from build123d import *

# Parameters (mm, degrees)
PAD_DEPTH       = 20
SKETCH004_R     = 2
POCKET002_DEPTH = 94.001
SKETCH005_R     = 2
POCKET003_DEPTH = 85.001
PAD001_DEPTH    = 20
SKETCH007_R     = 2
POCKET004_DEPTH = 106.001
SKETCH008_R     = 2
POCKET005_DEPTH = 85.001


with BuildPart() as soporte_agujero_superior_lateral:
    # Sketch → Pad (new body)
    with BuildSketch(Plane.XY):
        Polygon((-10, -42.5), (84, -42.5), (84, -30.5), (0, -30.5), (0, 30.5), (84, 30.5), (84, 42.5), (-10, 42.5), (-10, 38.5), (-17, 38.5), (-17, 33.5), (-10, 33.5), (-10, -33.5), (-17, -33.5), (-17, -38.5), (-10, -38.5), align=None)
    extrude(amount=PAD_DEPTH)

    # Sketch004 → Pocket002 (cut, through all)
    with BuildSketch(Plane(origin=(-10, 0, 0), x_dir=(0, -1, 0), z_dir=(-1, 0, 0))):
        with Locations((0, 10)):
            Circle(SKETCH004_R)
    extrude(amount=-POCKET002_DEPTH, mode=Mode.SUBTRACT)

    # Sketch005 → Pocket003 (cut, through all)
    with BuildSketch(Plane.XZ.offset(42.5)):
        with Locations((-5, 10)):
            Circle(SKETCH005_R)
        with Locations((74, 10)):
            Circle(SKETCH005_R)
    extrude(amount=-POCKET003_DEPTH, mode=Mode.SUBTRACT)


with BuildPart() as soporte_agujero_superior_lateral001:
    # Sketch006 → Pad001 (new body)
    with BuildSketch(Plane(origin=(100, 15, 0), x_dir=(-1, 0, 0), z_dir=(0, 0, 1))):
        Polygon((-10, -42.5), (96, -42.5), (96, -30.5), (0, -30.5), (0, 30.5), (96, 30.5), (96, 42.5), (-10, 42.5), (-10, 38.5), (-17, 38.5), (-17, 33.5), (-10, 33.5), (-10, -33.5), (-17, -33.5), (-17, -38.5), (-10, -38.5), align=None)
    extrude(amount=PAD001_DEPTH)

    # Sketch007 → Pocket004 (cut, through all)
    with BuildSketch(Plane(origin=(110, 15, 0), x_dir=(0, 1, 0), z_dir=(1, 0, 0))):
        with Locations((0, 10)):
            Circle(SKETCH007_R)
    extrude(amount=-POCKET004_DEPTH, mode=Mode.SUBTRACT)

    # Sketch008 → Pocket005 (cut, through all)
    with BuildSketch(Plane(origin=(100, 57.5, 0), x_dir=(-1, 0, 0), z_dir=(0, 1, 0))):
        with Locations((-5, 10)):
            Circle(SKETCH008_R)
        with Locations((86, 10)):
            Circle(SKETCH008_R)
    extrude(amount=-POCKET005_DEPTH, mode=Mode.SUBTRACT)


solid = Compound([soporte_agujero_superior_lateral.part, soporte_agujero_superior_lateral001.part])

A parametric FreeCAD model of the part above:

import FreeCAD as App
import Part
import Sketcher

V = App.Vector


def add_polygon(sketch, points):
    """Adds a closed chain of lines whose ends are joined by coincident constraints."""
    first, n = sketch.GeometryCount, len(points)
    for a, b in zip(points, points[1:] + points[:1]):
        sketch.addGeometry(Part.LineSegment(App.Vector(*a, 0), App.Vector(*b, 0)), False)
    for i in range(n):
        sketch.addConstraint(Sketcher.Constraint("Coincident", first + i, 2, first + (i + 1) % n, 1))

doc = App.newDocument("Part")
body = doc.addObject("PartDesign::Body", "Body")

sketch1 = body.newObject("Sketcher::SketchObject", "Sketch")
sketch1.AttachmentSupport = (doc.getObject("XY_Plane"), [""])
sketch1.MapMode = "FlatFace"
add_polygon(sketch1, [(-10, -42.5), (84, -42.5), (84, -30.5), (0, -30.5), (0, 30.5), (84, 30.5), (84, 42.5), (-10, 42.5), (-10, 38.5), (-17, 38.5), (-17, 33.5), (-10, 33.5), (-10, -33.5), (-17, -33.5), (-17, -38.5), (-10, -38.5)])
sketch1.addConstraint([
    Sketcher.Constraint("Horizontal", 0),
    Sketcher.Constraint("Vertical", 1),
    Sketcher.Constraint("Horizontal", 2),
    Sketcher.Constraint("Vertical", 3),
    Sketcher.Constraint("Horizontal", 4),
    Sketcher.Constraint("Vertical", 5),
    Sketcher.Constraint("Horizontal", 6),
    Sketcher.Constraint("Vertical", 7),
    Sketcher.Constraint("Horizontal", 8),
    Sketcher.Constraint("Vertical", 9),
    Sketcher.Constraint("Horizontal", 10),
    Sketcher.Constraint("Vertical", 11),
    Sketcher.Constraint("Horizontal", 12),
    Sketcher.Constraint("Vertical", 13),
    Sketcher.Constraint("Horizontal", 14),
    Sketcher.Constraint("Vertical", 15),
    Sketcher.Constraint("Symmetric", 2, 2, 3, 2, -1, 1),
    Sketcher.Constraint("Symmetric", 0, 2, 5, 2, -1),
    Sketcher.Constraint("Symmetric", 9, 2, 12, 2, -1),
    Sketcher.Constraint("Symmetric", 7, 2, 14, 2, -1),
    Sketcher.Constraint("Vertical", 7, 2, 10, 2),
    Sketcher.Constraint("DistanceX", 0, 1, 0, 2, 94.0),
    Sketcher.Constraint("DistanceX", 2, 2, 2, 1, 84.0),
    Sketcher.Constraint("DistanceX", 8, 2, 8, 1, 7.0),
    Sketcher.Constraint("DistanceY", 1, 1, 1, 2, 12.0),
    Sketcher.Constraint("DistanceY", 3, 1, 3, 2, 61.0),
    Sketcher.Constraint("DistanceY", 7, 2, 7, 1, 4.0),
    Sketcher.Constraint("DistanceY", 9, 2, 9, 1, 5.0),
])
pad1 = body.newObject("PartDesign::Pad", "Pad")
pad1.Profile = sketch1
pad1.Length = 20

sketch2 = body.newObject("Sketcher::SketchObject", "Sketch001")
sketch2.AttachmentSupport = (doc.getObject("YZ_Plane"), [""])
sketch2.MapMode = "FlatFace"
sketch2.AttachmentOffset = App.Placement(V(0, 0, -10), App.Rotation())
sketch2.addGeometry(Part.Circle(V(0, 10, 0), V(0, 0, 1), 2), False)
sketch2.addConstraint([
    Sketcher.Constraint("PointOnObject", 0, 3, -2),
    Sketcher.Constraint("Diameter", 0, 4.0),
    Sketcher.Constraint("DistanceY", -1, 1, 0, 3, 10.0),
])
pocket1 = body.newObject("PartDesign::Pocket", "Pocket")
pocket1.Profile = sketch2
pocket1.Type = "ThroughAll"
pocket1.Reversed = True

sketch3 = body.newObject("Sketcher::SketchObject", "Sketch002")
sketch3.AttachmentSupport = (doc.getObject("XZ_Plane"), [""])
sketch3.MapMode = "FlatFace"
sketch3.AttachmentOffset = App.Placement(V(0, 0, 42.5), App.Rotation())
sketch3.addGeometry([
    Part.Circle(V(-5, 10, 0), V(0, 0, 1), 2),
    Part.Circle(V(74, 10, 0), V(0, 0, 1), 2),
], False)
sketch3.addConstraint([
    Sketcher.Constraint("Equal", 0, 1),
    Sketcher.Constraint("Horizontal", 0, 3, 1, 3),
    Sketcher.Constraint("Diameter", 0, 4.0),
    Sketcher.Constraint("DistanceX", 0, 3, -1, 1, 5.0),
    Sketcher.Constraint("DistanceY", -1, 1, 0, 3, 10.0),
    Sketcher.Constraint("DistanceX", -1, 1, 1, 3, 74.0),
])
pocket2 = body.newObject("PartDesign::Pocket", "Pocket001")
pocket2.Profile = sketch3
pocket2.Type = "ThroughAll"
body2 = doc.addObject("PartDesign::Body", "Body001")

sketch4 = body2.newObject("Sketcher::SketchObject", "Sketch003")
sketch4.AttachmentSupport = (doc.getObject("XY_Plane001"), [""])
sketch4.MapMode = "FlatFace"
add_polygon(sketch4, [(110, 57.5), (4, 57.5), (4, 45.5), (100, 45.5), (100, -15.5), (4, -15.5), (4, -27.5), (110, -27.5), (110, -23.5), (117, -23.5), (117, -18.5), (110, -18.5), (110, 48.5), (117, 48.5), (117, 53.5), (110, 53.5)])
sketch4.addConstraint([
    Sketcher.Constraint("Horizontal", 0),
    Sketcher.Constraint("Vertical", 1),
    Sketcher.Constraint("Horizontal", 2),
    Sketcher.Constraint("Vertical", 3),
    Sketcher.Constraint("Horizontal", 4),
    Sketcher.Constraint("Vertical", 5),
    Sketcher.Constraint("Horizontal", 6),
    Sketcher.Constraint("Vertical", 7),
    Sketcher.Constraint("Horizontal", 8),
    Sketcher.Constraint("Vertical", 9),
    Sketcher.Constraint("Horizontal", 10),
    Sketcher.Constraint("Vertical", 11),
    Sketcher.Constraint("Horizontal", 12),
    Sketcher.Constraint("Vertical", 13),
    Sketcher.Constraint("Horizontal", 14),
    Sketcher.Constraint("Vertical", 15),
    Sketcher.Constraint("Vertical", 1, 2, 4, 2),
    Sketcher.Constraint("Vertical", 7, 2, 10, 2),
    Sketcher.Constraint("Vertical", 9, 2, 12, 2),
    Sketcher.Constraint("Vertical", 11, 2, 14, 2),
    Sketcher.Constraint("Equal", 1, 5),
    Sketcher.Constraint("Equal", 9, 13),
    Sketcher.Constraint("Equal", 7, 15),
    Sketcher.Constraint("DistanceX", 0, 2, 0, 1, 106.0),
    Sketcher.Constraint("DistanceX", 2, 1, 2, 2, 96.0),
    Sketcher.Constraint("DistanceX", 8, 1, 8, 2, 7.0),
    Sketcher.Constraint("DistanceY", 1, 2, 1, 1, 12.0),
    Sketcher.Constraint("DistanceY", 3, 2, 3, 1, 61.0),
    Sketcher.Constraint("DistanceY", 7, 1, 7, 2, 4.0),
    Sketcher.Constraint("DistanceY", 9, 1, 9, 2, 5.0),
    Sketcher.Constraint("DistanceX", -1, 1, 0, 2, 4.0),
    Sketcher.Constraint("DistanceY", -1, 1, 0, 2, 57.5),
])
pad2 = body2.newObject("PartDesign::Pad", "Pad001")
pad2.Profile = sketch4
pad2.Length = 20

sketch5 = body2.newObject("Sketcher::SketchObject", "Sketch004")
sketch5.AttachmentSupport = (doc.getObject("YZ_Plane001"), [""])
sketch5.MapMode = "FlatFace"
sketch5.AttachmentOffset = App.Placement(V(0, 0, 110), App.Rotation())
sketch5.addGeometry(Part.Circle(V(15, 10, 0), V(0, 0, 1), 2), False)
sketch5.addConstraint([
    Sketcher.Constraint("Diameter", 0, 4.0),
    Sketcher.Constraint("DistanceX", -1, 1, 0, 3, 15.0),
    Sketcher.Constraint("DistanceY", -1, 1, 0, 3, 10.0),
])
pocket3 = body2.newObject("PartDesign::Pocket", "Pocket002")
pocket3.Profile = sketch5
pocket3.Type = "ThroughAll"

sketch6 = body2.newObject("Sketcher::SketchObject", "Sketch005")
sketch6.AttachmentSupport = (doc.getObject("XZ_Plane001"), [""])
sketch6.MapMode = "FlatFace"
sketch6.AttachmentOffset = App.Placement(V(0, 0, -57.5), App.Rotation())
sketch6.addGeometry([
    Part.Circle(V(105, 10, 0), V(0, 0, 1), 2),
    Part.Circle(V(14, 10, 0), V(0, 0, 1), 2),
], False)
sketch6.addConstraint([
    Sketcher.Constraint("Equal", 0, 1),
    Sketcher.Constraint("Horizontal", 0, 3, 1, 3),
    Sketcher.Constraint("Diameter", 0, 4.0),
    Sketcher.Constraint("DistanceX", -1, 1, 0, 3, 105.0),
    Sketcher.Constraint("DistanceY", -1, 1, 0, 3, 10.0),
    Sketcher.Constraint("DistanceX", -1, 1, 1, 3, 14.0),
])
pocket4 = body2.newObject("PartDesign::Pocket", "Pocket003")
pocket4.Profile = sketch6
pocket4.Type = "ThroughAll"
pocket4.Reversed = True

doc.recompute()
